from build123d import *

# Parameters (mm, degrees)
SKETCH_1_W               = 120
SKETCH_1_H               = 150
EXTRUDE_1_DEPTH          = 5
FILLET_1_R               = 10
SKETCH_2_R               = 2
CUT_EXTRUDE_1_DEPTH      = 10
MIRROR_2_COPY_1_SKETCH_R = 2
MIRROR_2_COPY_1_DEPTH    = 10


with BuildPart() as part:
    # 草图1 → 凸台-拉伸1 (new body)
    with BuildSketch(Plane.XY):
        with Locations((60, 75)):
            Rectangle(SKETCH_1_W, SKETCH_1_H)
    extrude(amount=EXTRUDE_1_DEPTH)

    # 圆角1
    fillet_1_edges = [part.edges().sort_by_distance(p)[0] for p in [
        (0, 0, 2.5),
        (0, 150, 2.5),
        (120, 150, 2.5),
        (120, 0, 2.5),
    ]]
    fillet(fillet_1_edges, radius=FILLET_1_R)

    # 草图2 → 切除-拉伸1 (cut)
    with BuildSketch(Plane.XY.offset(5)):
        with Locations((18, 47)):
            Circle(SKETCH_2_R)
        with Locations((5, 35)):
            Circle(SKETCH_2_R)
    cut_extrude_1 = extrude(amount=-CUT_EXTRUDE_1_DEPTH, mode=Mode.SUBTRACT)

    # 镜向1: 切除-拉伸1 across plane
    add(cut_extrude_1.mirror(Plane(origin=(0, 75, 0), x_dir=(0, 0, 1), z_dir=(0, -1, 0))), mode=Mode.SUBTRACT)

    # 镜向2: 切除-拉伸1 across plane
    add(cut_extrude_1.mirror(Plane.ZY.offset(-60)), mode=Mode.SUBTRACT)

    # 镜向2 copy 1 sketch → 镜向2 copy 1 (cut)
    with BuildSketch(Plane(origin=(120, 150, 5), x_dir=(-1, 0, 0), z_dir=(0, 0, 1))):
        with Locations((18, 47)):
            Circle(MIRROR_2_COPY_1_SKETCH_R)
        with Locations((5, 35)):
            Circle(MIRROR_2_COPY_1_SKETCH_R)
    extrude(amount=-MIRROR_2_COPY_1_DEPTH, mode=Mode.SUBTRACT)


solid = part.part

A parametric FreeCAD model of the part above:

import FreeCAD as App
import Part
import Sketcher
from FreeCAD import Vector
Q = App.Units.Quantity


def edges_at(feature, points):
    """Names of the edges that pass closest to the given points."""
    edges = feature.Shape.Edges
    near = lambda p: min(range(len(edges)), key=lambda i: edges[i].distToShape(Part.Vertex(*p))[0])
    return sorted({f"Edge{near(p) + 1}" for p in points})

doc = App.newDocument("Part")
body = doc.addObject("PartDesign::Body", "Body")

# Sketch on XY plane
sketch1 = body.newObject("Sketcher::SketchObject", "Sketch")
sketch1.AttachmentSupport = (doc.getObject("XY_Plane"), [""])
sketch1.MapMode = "FlatFace"
sketch1.addGeometry([
    Part.LineSegment(Vector(0, 150, 0), Vector(0, 0, 0)),
    Part.LineSegment(Vector(0, 0, 0), Vector(120, 0, 0)),
    Part.LineSegment(Vector(120, 0, 0), Vector(120, 150, 0)),
    Part.LineSegment(Vector(120, 150, 0), Vector(0, 150, 0)),
], False)
sketch1.addConstraint([
    Sketcher.Constraint("Coincident", 0, 2, 1, 1),
    Sketcher.Constraint("Coincident", 1, 2, 2, 1),
    Sketcher.Constraint("Coincident", 2, 2, 3, 1),
    Sketcher.Constraint("Coincident", 3, 2, 0, 1),
    Sketcher.Constraint("Vertical", 0),
    Sketcher.Constraint("Horizontal", 1),
    Sketcher.Constraint("Vertical", 2),
    Sketcher.Constraint("Horizontal", 3),
    Sketcher.Constraint("Coincident", 0, 2, -1, 1),
    Sketcher.Constraint("DistanceX", 1, 1, 1, 2, Q("120 mm")),
    Sketcher.Constraint("DistanceY", 0, 2, 0, 1, Q("150 mm")),
])
pad1 = body.newObject("PartDesign::Pad", "Pad")
pad1.Profile = sketch1
pad1.Length = 5
doc.recompute()

fillet = body.newObject("PartDesign::Fillet", "Fillet")
fillet.Base = (pad1, edges_at(pad1, [
    (0, 0, 2.5),
    (0, 150, 2.5),
    (120, 150, 2.5),
    (120, 0, 2.5),
]))
fillet.Radius = 10

# Sketch on XY plane
sketch2 = body.newObject("Sketcher::SketchObject", "Sketch001")
sketch2.AttachmentSupport = (doc.getObject("XY_Plane"), [""])
sketch2.MapMode = "FlatFace"
sketch2.AttachmentOffset = App.Placement(Vector(0, 0, 5), App.Rotation())
sketch2.addGeometry([
    Part.Circle(Vector(18, 47, 0), Vector(0, 0, 1), 2),
    Part.Circle(Vector(5, 35, 0), Vector(0, 0, 1), 2),
], False)
sketch2.addConstraint([
    Sketcher.Constraint("Equal", 0, 1),
    Sketcher.Constraint("Diameter", 0, Q("4 mm")),
    Sketcher.Constraint("DistanceX", -1, 1, 0, 3, Q("18 mm")),
    Sketcher.Constraint("DistanceY", -1, 1, 0, 3, Q("47 mm")),
    Sketcher.Constraint("DistanceX", -1, 1, 1, 3, Q("5 mm")),
    Sketcher.Constraint("DistanceY", -1, 1, 1, 3, Q("35 mm")),
])
pocket1 = body.newObject("PartDesign::Pocket", "Pocket")
pocket1.Profile = sketch2
pocket1.Length = 10
doc.recompute()

datumplane = body.newObject("PartDesign::Plane", "DatumPlane")
datumplane.AttachmentSupport = (doc.getObject("XZ_Plane"), [""])
datumplane.MapMode = "FlatFace"
datumplane.AttachmentOffset = App.Placement(Vector(0, 0, -75), App.Rotation())
mirrored = body.newObject("PartDesign::Mirrored", "Mirrored")
mirrored.Originals = [pocket1]
mirrored.MirrorPlane = (datumplane, [""])
body.Tip = mirrored
doc.recompute()

datumplane2 = body.newObject("PartDesign::Plane", "DatumPlane001")
datumplane2.AttachmentSupport = (doc.getObject("YZ_Plane"), [""])
datumplane2.MapMode = "FlatFace"
datumplane2.AttachmentOffset = App.Placement(Vector(0, 0, 60), App.Rotation())
mirrored2 = body.newObject("PartDesign::Mirrored", "Mirrored001")
mirrored2.Originals = [pocket1]
mirrored2.MirrorPlane = (datumplane2, [""])
body.Tip = mirrored2

# Sketch on XY plane
sketch3 = body.newObject("Sketcher::SketchObject", "Sketch002")
sketch3.AttachmentSupport = (doc.getObject("XY_Plane"), [""])
sketch3.MapMode = "FlatFace"
sketch3.AttachmentOffset = App.Placement(Vector(0, 0, 5), App.Rotation())
sketch3.addGeometry([
    Part.Circle(Vector(102, 103, 0), Vector(0, 0, 1), 2),
    Part.Circle(Vector(115, 115, 0), Vector(0, 0, 1), 2),
], False)
sketch3.addConstraint([
    Sketcher.Constraint("Equal", 0, 1),
    Sketcher.Constraint("Diameter", 0, Q("4 mm")),
    Sketcher.Constraint("DistanceX", -1, 1, 0, 3, Q("102 mm")),
    Sketcher.Constraint("DistanceY", -1, 1, 0, 3, Q("103 mm")),
    Sketcher.Constraint("DistanceX", -1, 1, 1, 3, Q("115 mm")),
    Sketcher.Constraint("DistanceY", -1, 1, 1, 3, Q("115 mm")),
])
pocket2 = body.newObject("PartDesign::Pocket", "Pocket001")
pocket2.Profile = sketch3
pocket2.Length = 10

doc.recompute()
